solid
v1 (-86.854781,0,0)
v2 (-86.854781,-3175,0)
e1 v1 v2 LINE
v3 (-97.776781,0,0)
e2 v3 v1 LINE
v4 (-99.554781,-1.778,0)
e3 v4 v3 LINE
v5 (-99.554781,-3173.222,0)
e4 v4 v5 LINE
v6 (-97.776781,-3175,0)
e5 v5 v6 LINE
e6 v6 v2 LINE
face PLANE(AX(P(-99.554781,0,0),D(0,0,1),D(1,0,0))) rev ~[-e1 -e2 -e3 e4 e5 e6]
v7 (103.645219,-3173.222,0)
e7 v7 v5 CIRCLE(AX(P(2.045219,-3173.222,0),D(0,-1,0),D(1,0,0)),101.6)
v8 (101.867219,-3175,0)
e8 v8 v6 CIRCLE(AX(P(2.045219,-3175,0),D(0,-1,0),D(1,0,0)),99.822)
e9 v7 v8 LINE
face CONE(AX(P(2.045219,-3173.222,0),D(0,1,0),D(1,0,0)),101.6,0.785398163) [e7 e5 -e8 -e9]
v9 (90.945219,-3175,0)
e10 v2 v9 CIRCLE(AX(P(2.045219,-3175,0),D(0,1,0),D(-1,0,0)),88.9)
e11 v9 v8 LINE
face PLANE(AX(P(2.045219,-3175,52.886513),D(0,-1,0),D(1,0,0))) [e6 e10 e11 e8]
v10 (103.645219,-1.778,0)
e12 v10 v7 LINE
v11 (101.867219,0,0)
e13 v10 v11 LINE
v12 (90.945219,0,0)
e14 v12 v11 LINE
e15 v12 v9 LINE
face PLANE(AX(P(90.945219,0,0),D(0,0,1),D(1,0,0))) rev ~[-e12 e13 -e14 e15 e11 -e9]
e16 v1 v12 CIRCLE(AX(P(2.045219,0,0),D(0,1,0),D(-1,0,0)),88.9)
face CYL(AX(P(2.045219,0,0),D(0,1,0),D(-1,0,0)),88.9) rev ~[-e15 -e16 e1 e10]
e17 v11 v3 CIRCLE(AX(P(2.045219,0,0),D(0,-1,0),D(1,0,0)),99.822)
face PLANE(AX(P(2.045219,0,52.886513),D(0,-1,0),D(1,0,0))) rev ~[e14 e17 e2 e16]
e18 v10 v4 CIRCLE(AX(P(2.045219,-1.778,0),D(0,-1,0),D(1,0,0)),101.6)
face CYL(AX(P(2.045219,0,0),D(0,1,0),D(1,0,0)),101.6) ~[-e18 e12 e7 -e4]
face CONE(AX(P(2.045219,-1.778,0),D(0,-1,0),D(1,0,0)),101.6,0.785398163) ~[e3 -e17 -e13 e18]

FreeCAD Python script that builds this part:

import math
import FreeCAD as App
import Part
import Sketcher

V = App.Vector
Q = App.Units.Quantity


def edges_at(feature, points):
    """Names of the edges that pass closest to the given points."""
    edges = feature.Shape.Edges
    near = lambda p: min(range(len(edges)), key=lambda i: edges[i].distToShape(Part.Vertex(*p))[0])
    return sorted({f"Edge{near(p) + 1}" for p in points})

doc = App.newDocument("Part")
body = doc.addObject("PartDesign::Body", "Body")

sketch1 = body.newObject("Sketcher::SketchObject", "Sketch")
sketch1.AttachmentSupport = (doc.getObject("XZ_Plane"), [""])
sketch1.MapMode = "FlatFace"
sketch1.addGeometry([
    Part.LineSegment(V(91, 0, 0), V(104, 0, 0)),
    Part.ArcOfCircle(Part.Circle(V(2, 0, 0), V(0, 0, 1), 102), math.radians(0), math.radians(180)),
    Part.LineSegment(V(-100, 0, 0), V(-87, 0, 0)),
    Part.ArcOfCircle(Part.Circle(V(2, 0, 0), V(0, 0, 1), 89), math.radians(0), math.radians(180)),
], False)
sketch1.addConstraint([
    Sketcher.Constraint("Coincident", 0, 2, 1, 1),
    Sketcher.Constraint("Coincident", 1, 2, 2, 1),
    Sketcher.Constraint("Coincident", 2, 2, 3, 2),
    Sketcher.Constraint("Coincident", 3, 1, 0, 1),
    Sketcher.Constraint("Horizontal", 0),
    Sketcher.Constraint("Horizontal", 2),
    Sketcher.Constraint("Coincident", 3, 3, 1, 3),
    Sketcher.Constraint("PointOnObject", 1, 3, -1),
    Sketcher.Constraint("PointOnObject", 0, 2, -1),
    Sketcher.Constraint("PointOnObject", 1, 2, -1),
    Sketcher.Constraint("Radius", 1, Q("4 in")),
    Sketcher.Constraint("Radius", 3, Q("3.5 in")),
    Sketcher.Constraint("DistanceX", -1, 1, 1, 3, 2.045219),
])
pad1 = body.newObject("PartDesign::Pad", "Pad")
pad1.Profile = sketch1
pad1.Length = Q("125 in")
doc.recompute()

chamfer = body.newObject("PartDesign::Chamfer", "Chamfer")
chamfer.Base = (pad1, edges_at(pad1, [(2.045, 0, 101.6), (2.045, -3175, 101.6)]))
chamfer.Size = Q("0.07 in")

doc.recompute()
